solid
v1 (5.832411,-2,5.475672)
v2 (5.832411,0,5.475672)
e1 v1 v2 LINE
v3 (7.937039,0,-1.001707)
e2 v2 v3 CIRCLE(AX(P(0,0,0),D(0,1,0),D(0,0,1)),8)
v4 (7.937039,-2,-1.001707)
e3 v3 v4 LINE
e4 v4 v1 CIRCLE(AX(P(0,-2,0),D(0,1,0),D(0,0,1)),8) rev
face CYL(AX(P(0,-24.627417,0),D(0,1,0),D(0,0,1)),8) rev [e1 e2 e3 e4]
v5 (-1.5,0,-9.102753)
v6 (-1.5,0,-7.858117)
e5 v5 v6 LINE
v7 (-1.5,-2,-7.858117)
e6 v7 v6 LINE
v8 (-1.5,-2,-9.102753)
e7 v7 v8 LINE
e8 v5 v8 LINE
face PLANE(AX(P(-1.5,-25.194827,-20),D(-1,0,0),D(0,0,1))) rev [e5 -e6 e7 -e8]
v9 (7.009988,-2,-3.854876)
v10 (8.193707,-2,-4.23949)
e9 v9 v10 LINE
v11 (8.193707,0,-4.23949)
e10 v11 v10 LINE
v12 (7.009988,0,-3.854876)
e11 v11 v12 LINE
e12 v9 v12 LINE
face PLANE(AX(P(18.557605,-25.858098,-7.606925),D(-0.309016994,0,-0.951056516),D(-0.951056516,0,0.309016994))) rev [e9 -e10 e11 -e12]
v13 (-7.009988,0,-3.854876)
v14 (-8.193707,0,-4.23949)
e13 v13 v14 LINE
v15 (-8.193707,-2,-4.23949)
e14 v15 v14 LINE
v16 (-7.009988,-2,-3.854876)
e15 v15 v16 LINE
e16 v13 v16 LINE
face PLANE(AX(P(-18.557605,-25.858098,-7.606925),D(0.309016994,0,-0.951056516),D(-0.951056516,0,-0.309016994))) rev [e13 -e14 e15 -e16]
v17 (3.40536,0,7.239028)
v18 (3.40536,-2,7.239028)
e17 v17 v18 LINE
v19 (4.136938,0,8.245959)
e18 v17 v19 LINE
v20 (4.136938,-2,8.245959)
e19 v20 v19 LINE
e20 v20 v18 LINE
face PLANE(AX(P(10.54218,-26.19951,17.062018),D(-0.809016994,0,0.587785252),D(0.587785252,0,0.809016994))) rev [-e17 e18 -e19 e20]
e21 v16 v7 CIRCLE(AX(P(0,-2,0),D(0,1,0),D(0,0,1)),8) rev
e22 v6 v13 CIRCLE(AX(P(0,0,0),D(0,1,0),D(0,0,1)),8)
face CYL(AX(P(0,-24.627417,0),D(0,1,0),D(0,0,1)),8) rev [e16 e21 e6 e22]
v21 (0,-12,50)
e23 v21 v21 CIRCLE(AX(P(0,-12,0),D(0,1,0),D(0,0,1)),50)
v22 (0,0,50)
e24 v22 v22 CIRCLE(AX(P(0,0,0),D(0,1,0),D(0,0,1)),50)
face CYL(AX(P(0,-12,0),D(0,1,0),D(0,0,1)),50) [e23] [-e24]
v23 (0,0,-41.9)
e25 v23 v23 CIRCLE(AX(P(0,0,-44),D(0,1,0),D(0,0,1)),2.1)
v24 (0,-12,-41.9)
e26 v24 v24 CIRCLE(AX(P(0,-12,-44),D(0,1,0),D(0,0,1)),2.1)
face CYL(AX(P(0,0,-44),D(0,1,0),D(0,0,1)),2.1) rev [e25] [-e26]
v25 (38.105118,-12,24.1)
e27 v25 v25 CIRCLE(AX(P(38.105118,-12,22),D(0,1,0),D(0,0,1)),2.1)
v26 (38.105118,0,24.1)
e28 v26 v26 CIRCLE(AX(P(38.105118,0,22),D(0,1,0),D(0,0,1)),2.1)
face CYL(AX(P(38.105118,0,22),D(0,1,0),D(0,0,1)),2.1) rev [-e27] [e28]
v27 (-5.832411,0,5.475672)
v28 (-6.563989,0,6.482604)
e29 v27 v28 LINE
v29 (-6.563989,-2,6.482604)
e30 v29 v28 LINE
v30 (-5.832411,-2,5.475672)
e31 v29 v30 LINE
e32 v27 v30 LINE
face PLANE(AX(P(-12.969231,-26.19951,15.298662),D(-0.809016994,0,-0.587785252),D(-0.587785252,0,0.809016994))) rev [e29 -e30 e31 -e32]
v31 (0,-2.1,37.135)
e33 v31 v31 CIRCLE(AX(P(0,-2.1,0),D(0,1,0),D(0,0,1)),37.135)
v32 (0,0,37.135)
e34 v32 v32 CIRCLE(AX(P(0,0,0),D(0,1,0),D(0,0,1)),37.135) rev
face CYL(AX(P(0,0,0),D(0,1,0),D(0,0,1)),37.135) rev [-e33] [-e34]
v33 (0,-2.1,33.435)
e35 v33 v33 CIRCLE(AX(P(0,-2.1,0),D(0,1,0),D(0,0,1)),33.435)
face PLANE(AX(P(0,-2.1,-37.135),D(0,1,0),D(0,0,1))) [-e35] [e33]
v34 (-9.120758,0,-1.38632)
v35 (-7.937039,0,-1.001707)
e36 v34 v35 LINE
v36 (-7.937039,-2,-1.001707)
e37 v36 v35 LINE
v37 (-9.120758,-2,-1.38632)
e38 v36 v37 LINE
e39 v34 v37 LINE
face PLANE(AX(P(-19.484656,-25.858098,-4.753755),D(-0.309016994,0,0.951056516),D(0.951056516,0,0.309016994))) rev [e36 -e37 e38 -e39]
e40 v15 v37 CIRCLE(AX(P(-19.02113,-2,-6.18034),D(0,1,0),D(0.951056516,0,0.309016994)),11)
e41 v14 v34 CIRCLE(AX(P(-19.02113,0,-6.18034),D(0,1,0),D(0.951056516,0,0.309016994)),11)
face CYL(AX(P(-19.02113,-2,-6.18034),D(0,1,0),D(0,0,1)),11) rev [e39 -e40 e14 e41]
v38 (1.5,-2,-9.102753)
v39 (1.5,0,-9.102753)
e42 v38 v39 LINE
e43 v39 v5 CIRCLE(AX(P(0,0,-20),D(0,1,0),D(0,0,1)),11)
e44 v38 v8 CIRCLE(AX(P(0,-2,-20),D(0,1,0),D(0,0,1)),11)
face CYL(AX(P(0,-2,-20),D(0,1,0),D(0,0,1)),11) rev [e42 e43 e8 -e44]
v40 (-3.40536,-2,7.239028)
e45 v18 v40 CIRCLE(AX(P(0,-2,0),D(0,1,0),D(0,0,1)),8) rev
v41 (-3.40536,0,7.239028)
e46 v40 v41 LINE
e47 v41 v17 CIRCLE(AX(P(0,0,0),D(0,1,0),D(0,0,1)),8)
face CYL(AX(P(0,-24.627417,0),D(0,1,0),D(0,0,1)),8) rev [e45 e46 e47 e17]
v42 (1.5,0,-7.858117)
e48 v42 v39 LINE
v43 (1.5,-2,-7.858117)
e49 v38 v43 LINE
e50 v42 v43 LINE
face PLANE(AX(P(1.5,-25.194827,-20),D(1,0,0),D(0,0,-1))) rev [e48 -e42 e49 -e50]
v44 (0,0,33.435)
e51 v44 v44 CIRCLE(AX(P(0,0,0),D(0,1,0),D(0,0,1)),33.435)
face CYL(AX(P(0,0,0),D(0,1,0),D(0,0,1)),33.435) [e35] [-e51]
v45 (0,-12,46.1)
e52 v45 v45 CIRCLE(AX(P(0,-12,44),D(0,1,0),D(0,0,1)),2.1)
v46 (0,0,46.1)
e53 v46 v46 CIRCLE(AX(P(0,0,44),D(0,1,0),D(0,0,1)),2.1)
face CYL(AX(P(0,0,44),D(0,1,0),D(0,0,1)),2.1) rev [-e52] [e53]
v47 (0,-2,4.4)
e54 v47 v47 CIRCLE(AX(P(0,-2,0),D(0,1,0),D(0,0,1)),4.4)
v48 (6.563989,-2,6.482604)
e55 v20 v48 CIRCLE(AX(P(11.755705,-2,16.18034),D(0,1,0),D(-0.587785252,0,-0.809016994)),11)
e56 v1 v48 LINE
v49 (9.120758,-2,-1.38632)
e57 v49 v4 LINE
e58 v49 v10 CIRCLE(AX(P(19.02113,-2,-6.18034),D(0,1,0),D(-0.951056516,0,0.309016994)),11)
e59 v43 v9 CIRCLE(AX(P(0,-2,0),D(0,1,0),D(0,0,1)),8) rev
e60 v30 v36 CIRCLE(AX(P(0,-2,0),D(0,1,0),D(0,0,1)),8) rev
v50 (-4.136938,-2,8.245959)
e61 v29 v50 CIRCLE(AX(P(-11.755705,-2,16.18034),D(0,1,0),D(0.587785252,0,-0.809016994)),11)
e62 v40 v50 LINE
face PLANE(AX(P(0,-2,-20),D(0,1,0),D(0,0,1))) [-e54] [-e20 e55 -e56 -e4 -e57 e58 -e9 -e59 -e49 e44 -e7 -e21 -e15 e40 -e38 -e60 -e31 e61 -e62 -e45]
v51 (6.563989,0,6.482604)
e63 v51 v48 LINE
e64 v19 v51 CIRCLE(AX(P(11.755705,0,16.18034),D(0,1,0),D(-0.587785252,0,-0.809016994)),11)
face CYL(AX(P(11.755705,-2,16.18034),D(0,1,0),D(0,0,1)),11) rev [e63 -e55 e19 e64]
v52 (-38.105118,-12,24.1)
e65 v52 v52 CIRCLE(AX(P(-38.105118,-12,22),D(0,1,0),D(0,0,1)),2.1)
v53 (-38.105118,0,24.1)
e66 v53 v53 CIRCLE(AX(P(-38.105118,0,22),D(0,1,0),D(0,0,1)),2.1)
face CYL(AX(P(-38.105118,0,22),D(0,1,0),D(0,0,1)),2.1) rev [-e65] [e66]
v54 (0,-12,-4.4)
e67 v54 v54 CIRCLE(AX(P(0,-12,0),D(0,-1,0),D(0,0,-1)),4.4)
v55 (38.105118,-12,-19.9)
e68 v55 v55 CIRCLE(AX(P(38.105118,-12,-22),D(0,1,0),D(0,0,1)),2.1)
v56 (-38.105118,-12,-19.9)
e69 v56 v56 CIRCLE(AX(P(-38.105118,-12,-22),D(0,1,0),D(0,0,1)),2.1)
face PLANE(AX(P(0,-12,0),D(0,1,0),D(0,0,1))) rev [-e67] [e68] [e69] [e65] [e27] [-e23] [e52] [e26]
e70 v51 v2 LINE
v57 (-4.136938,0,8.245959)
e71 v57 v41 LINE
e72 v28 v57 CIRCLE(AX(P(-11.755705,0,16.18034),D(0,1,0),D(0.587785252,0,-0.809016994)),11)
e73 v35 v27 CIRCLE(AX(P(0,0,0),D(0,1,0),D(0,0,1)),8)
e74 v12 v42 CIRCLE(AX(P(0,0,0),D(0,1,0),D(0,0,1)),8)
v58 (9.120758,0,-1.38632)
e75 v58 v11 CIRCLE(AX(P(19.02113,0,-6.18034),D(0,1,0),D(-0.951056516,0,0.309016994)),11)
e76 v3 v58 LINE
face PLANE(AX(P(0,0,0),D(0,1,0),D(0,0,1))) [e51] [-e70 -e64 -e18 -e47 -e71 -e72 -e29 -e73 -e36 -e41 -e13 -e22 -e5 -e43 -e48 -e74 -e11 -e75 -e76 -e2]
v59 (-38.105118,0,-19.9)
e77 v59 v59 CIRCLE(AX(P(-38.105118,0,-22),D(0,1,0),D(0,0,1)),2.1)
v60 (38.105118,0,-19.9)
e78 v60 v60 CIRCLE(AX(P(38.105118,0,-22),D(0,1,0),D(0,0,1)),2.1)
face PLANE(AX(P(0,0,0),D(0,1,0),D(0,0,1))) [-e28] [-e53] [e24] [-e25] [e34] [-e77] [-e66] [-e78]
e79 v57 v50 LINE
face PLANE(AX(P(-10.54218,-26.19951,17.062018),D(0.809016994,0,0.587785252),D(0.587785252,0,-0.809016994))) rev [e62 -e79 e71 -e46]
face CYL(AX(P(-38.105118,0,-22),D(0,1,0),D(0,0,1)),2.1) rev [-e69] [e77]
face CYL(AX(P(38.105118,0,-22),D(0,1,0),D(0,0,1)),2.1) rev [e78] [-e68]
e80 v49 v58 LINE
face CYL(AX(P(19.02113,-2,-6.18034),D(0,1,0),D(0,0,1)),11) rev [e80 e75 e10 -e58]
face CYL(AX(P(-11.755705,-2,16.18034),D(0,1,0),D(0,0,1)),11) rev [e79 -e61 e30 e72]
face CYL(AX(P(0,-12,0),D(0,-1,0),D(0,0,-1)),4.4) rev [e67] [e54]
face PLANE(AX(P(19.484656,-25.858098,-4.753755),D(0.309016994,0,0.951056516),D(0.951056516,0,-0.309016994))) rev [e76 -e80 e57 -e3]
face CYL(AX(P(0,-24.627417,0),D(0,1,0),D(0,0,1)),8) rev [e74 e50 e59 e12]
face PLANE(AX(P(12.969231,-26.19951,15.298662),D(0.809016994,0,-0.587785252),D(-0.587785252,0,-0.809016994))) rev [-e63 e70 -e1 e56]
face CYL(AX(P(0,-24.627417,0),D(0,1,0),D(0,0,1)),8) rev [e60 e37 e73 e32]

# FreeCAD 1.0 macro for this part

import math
import FreeCAD as App
import Part
import Sketcher
from FreeCAD import Vector
Q = App.Units.Quantity


def add_polygon(sketch, points):
    """Adds a closed chain of lines whose ends are joined by coincident constraints."""
    first, n = sketch.GeometryCount, len(points)
    for a, b in zip(points, points[1:] + points[:1]):
        sketch.addGeometry(Part.LineSegment(App.Vector(*a, 0), App.Vector(*b, 0)), False)
    for i in range(n):
        sketch.addConstraint(Sketcher.Constraint("Coincident", first + i, 2, first + (i + 1) % n, 1))

doc = App.newDocument("Part")
body = doc.addObject("PartDesign::Body", "Body")

sketch1 = body.newObject("Sketcher::SketchObject", "Sketch")
sketch1.AttachmentSupport = (doc.getObject("XZ_Plane"), [""])
sketch1.MapMode = "FlatFace"
sketch1.addGeometry(Part.Circle(Vector(0, 0, 0), Vector(0, 0, 1), 50), False)
sketch1.addConstraint(Sketcher.Constraint("Coincident", 0, 3, -1, 1))
sketch1.addConstraint(Sketcher.Constraint("Diameter", 0, Q("100 mm")))
pad1 = body.newObject("PartDesign::Pad", "Pad")
pad1.Profile = sketch1
pad1.Length = 12

sketch2 = body.newObject("Sketcher::SketchObject", "Sketch001")
sketch2.AttachmentSupport = (doc.getObject("XZ_Plane"), [""])
sketch2.MapMode = "FlatFace"
sketch2.addGeometry(Part.Circle(Vector(0, -20, 0), Vector(0, 0, 1), 11), False)
sketch2.addConstraint(Sketcher.Constraint("PointOnObject", 0, 3, -2))
sketch2.addConstraint(Sketcher.Constraint("Diameter", 0, Q("22 mm")))
sketch2.addConstraint(Sketcher.Constraint("DistanceY", 0, 3, -1, 1, Q("20 mm")))
pocket1 = body.newObject("PartDesign::Pocket", "Pocket")
pocket1.Profile = sketch2
pocket1.Length = 2
pocket1.Reversed = True

sketch3 = body.newObject("Sketcher::SketchObject", "Sketch002")
sketch3.AttachmentSupport = (doc.getObject("XZ_Plane"), [""])
sketch3.MapMode = "FlatFace"
sketch3.addGeometry(Part.Circle(Vector(0, 0, 0), Vector(0, 0, 1), 8), False)
sketch3.addConstraint(Sketcher.Constraint("Coincident", 0, 3, -1, 1))
sketch3.addConstraint(Sketcher.Constraint("Diameter", 0, Q("16 mm")))
pocket2 = body.newObject("PartDesign::Pocket", "Pocket001")
pocket2.Profile = sketch3
pocket2.Length = 2
pocket2.Reversed = True

sketch4 = body.newObject("Sketcher::SketchObject", "Sketch003")
sketch4.AttachmentSupport = (doc.getObject("XZ_Plane"), [""])
sketch4.MapMode = "FlatFace"
sketch4.AttachmentOffset = App.Placement(Vector(0, 0, 12), App.Rotation())
sketch4.addGeometry(Part.Circle(Vector(0, 0, 0), Vector(0, 0, 1), 4.4), False)
sketch4.addConstraint(Sketcher.Constraint("Coincident", 0, 3, -1, 1))
sketch4.addConstraint(Sketcher.Constraint("Diameter", 0, Q("8.8 mm")))
doc.recompute()
hole = body.newObject("PartDesign::Hole", "Hole")
hole.Profile = sketch4
hole.ThreadType = "None"
hole.Diameter = 8.8
hole.DepthType = "ThroughAll"

sketch5 = body.newObject("Sketcher::SketchObject", "Sketch004")
sketch5.AttachmentSupport = (doc.getObject("XZ_Plane"), [""])
sketch5.MapMode = "FlatFace"
sketch5.addGeometry(Part.LineSegment(Vector(1.5, 0, 0), Vector(1.5, -20, 0)), False)
sketch5.addGeometry(Part.ArcOfCircle(Part.Circle(Vector(0, -20, 0), Vector(0, 0, 1), 1.5), math.radians(180), math.radians(360)), False)
sketch5.addGeometry(Part.LineSegment(Vector(-1.5, -20, 0), Vector(-1.5, 0, 0)), False)
sketch5.addGeometry(Part.ArcOfCircle(Part.Circle(Vector(0, 0, 0), Vector(0, 0, 1), 1.5), math.radians(0), math.radians(180)), False)
sketch5.addConstraint(Sketcher.Constraint("Tangent", 0, 2, 1, 2))
sketch5.addConstraint(Sketcher.Constraint("Tangent", 1, 1, 2, 1))
sketch5.addConstraint(Sketcher.Constraint("Tangent", 2, 2, 3, 2))
sketch5.addConstraint(Sketcher.Constraint("Tangent", 3, 1, 0, 1))
sketch5.addConstraint(Sketcher.Constraint("Vertical", 0))
sketch5.addConstraint(Sketcher.Constraint("Vertical", 2))
sketch5.addConstraint(Sketcher.Constraint("Coincident", 3, 3, -1, 1))
sketch5.addConstraint(Sketcher.Constraint("Radius", 1, Q("1.5 mm")))
sketch5.addConstraint(Sketcher.Constraint("DistanceY", 0, 2, 0, 1, Q("20 mm")))
pocket3 = body.newObject("PartDesign::Pocket", "Pocket002")
pocket3.Profile = sketch5
pocket3.Length = 2
pocket3.Reversed = True
doc.recompute()

polarpattern = body.newObject("PartDesign::PolarPattern", "PolarPattern")
polarpattern.Originals = [pocket1, pocket3]
polarpattern.Axis = (doc.getObject("Y_Axis"), [""])
polarpattern.Angle = 360
polarpattern.Occurrences = 5
body.Tip = polarpattern

sketch6 = body.newObject("Sketcher::SketchObject", "Sketch005")
sketch6.AttachmentSupport = (doc.getObject("YZ_Plane"), [""])
sketch6.MapMode = "FlatFace"
add_polygon(sketch6, [(2.1, -33.4), (-2.1, -33.4), (-2.1, -37.1), (2.1, -37.1)])
sketch6.addConstraint(Sketcher.Constraint("Horizontal", 0))
sketch6.addConstraint(Sketcher.Constraint("Vertical", 1))
sketch6.addConstraint(Sketcher.Constraint("Horizontal", 2))
sketch6.addConstraint(Sketcher.Constraint("Vertical", 3))
sketch6.addConstraint(Sketcher.Constraint("DistanceX", 0, 2, 0, 1, Q("4.2 mm")))
sketch6.addConstraint(Sketcher.Constraint("DistanceY", 1, 2, 1, 1, Q("3.7 mm")))
sketch6.addConstraint(Sketcher.Constraint("DistanceX", 0, 2, -1, 1, Q("2.1 mm")))
sketch6.addConstraint(Sketcher.Constraint("DistanceY", 0, 2, -1, 1, Q("33.435 mm")))
groove = body.newObject("PartDesign::Groove", "Groove")
groove.Profile = sketch6
groove.ReferenceAxis = (sketch6, ["H_Axis"])
groove.Angle = 360

sketch7 = body.newObject("Sketcher::SketchObject", "Sketch006")
sketch7.AttachmentSupport = (doc.getObject("XZ_Plane"), [""])
sketch7.MapMode = "FlatFace"
sketch7.addGeometry(Part.Circle(Vector(0, -44, 0), Vector(0, 0, 1), 2.1), False)
sketch7.addConstraint(Sketcher.Constraint("PointOnObject", 0, 3, -2))
sketch7.addConstraint(Sketcher.Constraint("Diameter", 0, Q("4.2 mm")))
sketch7.addConstraint(Sketcher.Constraint("DistanceY", 0, 3, -1, 1, Q("44 mm")))
doc.recompute()
hole2 = body.newObject("PartDesign::Hole", "Hole001")
hole2.Profile = sketch7
hole2.ThreadType = "None"
hole2.Diameter = 4.2
hole2.DepthType = "ThroughAll"
hole2.Reversed = True
doc.recompute()

polarpattern2 = body.newObject("PartDesign::PolarPattern", "PolarPattern001")
polarpattern2.Originals = [hole2]
polarpattern2.Axis = (doc.getObject("Y_Axis"), [""])
polarpattern2.Angle = 360
polarpattern2.Occurrences = 6
body.Tip = polarpattern2

doc.recompute()
